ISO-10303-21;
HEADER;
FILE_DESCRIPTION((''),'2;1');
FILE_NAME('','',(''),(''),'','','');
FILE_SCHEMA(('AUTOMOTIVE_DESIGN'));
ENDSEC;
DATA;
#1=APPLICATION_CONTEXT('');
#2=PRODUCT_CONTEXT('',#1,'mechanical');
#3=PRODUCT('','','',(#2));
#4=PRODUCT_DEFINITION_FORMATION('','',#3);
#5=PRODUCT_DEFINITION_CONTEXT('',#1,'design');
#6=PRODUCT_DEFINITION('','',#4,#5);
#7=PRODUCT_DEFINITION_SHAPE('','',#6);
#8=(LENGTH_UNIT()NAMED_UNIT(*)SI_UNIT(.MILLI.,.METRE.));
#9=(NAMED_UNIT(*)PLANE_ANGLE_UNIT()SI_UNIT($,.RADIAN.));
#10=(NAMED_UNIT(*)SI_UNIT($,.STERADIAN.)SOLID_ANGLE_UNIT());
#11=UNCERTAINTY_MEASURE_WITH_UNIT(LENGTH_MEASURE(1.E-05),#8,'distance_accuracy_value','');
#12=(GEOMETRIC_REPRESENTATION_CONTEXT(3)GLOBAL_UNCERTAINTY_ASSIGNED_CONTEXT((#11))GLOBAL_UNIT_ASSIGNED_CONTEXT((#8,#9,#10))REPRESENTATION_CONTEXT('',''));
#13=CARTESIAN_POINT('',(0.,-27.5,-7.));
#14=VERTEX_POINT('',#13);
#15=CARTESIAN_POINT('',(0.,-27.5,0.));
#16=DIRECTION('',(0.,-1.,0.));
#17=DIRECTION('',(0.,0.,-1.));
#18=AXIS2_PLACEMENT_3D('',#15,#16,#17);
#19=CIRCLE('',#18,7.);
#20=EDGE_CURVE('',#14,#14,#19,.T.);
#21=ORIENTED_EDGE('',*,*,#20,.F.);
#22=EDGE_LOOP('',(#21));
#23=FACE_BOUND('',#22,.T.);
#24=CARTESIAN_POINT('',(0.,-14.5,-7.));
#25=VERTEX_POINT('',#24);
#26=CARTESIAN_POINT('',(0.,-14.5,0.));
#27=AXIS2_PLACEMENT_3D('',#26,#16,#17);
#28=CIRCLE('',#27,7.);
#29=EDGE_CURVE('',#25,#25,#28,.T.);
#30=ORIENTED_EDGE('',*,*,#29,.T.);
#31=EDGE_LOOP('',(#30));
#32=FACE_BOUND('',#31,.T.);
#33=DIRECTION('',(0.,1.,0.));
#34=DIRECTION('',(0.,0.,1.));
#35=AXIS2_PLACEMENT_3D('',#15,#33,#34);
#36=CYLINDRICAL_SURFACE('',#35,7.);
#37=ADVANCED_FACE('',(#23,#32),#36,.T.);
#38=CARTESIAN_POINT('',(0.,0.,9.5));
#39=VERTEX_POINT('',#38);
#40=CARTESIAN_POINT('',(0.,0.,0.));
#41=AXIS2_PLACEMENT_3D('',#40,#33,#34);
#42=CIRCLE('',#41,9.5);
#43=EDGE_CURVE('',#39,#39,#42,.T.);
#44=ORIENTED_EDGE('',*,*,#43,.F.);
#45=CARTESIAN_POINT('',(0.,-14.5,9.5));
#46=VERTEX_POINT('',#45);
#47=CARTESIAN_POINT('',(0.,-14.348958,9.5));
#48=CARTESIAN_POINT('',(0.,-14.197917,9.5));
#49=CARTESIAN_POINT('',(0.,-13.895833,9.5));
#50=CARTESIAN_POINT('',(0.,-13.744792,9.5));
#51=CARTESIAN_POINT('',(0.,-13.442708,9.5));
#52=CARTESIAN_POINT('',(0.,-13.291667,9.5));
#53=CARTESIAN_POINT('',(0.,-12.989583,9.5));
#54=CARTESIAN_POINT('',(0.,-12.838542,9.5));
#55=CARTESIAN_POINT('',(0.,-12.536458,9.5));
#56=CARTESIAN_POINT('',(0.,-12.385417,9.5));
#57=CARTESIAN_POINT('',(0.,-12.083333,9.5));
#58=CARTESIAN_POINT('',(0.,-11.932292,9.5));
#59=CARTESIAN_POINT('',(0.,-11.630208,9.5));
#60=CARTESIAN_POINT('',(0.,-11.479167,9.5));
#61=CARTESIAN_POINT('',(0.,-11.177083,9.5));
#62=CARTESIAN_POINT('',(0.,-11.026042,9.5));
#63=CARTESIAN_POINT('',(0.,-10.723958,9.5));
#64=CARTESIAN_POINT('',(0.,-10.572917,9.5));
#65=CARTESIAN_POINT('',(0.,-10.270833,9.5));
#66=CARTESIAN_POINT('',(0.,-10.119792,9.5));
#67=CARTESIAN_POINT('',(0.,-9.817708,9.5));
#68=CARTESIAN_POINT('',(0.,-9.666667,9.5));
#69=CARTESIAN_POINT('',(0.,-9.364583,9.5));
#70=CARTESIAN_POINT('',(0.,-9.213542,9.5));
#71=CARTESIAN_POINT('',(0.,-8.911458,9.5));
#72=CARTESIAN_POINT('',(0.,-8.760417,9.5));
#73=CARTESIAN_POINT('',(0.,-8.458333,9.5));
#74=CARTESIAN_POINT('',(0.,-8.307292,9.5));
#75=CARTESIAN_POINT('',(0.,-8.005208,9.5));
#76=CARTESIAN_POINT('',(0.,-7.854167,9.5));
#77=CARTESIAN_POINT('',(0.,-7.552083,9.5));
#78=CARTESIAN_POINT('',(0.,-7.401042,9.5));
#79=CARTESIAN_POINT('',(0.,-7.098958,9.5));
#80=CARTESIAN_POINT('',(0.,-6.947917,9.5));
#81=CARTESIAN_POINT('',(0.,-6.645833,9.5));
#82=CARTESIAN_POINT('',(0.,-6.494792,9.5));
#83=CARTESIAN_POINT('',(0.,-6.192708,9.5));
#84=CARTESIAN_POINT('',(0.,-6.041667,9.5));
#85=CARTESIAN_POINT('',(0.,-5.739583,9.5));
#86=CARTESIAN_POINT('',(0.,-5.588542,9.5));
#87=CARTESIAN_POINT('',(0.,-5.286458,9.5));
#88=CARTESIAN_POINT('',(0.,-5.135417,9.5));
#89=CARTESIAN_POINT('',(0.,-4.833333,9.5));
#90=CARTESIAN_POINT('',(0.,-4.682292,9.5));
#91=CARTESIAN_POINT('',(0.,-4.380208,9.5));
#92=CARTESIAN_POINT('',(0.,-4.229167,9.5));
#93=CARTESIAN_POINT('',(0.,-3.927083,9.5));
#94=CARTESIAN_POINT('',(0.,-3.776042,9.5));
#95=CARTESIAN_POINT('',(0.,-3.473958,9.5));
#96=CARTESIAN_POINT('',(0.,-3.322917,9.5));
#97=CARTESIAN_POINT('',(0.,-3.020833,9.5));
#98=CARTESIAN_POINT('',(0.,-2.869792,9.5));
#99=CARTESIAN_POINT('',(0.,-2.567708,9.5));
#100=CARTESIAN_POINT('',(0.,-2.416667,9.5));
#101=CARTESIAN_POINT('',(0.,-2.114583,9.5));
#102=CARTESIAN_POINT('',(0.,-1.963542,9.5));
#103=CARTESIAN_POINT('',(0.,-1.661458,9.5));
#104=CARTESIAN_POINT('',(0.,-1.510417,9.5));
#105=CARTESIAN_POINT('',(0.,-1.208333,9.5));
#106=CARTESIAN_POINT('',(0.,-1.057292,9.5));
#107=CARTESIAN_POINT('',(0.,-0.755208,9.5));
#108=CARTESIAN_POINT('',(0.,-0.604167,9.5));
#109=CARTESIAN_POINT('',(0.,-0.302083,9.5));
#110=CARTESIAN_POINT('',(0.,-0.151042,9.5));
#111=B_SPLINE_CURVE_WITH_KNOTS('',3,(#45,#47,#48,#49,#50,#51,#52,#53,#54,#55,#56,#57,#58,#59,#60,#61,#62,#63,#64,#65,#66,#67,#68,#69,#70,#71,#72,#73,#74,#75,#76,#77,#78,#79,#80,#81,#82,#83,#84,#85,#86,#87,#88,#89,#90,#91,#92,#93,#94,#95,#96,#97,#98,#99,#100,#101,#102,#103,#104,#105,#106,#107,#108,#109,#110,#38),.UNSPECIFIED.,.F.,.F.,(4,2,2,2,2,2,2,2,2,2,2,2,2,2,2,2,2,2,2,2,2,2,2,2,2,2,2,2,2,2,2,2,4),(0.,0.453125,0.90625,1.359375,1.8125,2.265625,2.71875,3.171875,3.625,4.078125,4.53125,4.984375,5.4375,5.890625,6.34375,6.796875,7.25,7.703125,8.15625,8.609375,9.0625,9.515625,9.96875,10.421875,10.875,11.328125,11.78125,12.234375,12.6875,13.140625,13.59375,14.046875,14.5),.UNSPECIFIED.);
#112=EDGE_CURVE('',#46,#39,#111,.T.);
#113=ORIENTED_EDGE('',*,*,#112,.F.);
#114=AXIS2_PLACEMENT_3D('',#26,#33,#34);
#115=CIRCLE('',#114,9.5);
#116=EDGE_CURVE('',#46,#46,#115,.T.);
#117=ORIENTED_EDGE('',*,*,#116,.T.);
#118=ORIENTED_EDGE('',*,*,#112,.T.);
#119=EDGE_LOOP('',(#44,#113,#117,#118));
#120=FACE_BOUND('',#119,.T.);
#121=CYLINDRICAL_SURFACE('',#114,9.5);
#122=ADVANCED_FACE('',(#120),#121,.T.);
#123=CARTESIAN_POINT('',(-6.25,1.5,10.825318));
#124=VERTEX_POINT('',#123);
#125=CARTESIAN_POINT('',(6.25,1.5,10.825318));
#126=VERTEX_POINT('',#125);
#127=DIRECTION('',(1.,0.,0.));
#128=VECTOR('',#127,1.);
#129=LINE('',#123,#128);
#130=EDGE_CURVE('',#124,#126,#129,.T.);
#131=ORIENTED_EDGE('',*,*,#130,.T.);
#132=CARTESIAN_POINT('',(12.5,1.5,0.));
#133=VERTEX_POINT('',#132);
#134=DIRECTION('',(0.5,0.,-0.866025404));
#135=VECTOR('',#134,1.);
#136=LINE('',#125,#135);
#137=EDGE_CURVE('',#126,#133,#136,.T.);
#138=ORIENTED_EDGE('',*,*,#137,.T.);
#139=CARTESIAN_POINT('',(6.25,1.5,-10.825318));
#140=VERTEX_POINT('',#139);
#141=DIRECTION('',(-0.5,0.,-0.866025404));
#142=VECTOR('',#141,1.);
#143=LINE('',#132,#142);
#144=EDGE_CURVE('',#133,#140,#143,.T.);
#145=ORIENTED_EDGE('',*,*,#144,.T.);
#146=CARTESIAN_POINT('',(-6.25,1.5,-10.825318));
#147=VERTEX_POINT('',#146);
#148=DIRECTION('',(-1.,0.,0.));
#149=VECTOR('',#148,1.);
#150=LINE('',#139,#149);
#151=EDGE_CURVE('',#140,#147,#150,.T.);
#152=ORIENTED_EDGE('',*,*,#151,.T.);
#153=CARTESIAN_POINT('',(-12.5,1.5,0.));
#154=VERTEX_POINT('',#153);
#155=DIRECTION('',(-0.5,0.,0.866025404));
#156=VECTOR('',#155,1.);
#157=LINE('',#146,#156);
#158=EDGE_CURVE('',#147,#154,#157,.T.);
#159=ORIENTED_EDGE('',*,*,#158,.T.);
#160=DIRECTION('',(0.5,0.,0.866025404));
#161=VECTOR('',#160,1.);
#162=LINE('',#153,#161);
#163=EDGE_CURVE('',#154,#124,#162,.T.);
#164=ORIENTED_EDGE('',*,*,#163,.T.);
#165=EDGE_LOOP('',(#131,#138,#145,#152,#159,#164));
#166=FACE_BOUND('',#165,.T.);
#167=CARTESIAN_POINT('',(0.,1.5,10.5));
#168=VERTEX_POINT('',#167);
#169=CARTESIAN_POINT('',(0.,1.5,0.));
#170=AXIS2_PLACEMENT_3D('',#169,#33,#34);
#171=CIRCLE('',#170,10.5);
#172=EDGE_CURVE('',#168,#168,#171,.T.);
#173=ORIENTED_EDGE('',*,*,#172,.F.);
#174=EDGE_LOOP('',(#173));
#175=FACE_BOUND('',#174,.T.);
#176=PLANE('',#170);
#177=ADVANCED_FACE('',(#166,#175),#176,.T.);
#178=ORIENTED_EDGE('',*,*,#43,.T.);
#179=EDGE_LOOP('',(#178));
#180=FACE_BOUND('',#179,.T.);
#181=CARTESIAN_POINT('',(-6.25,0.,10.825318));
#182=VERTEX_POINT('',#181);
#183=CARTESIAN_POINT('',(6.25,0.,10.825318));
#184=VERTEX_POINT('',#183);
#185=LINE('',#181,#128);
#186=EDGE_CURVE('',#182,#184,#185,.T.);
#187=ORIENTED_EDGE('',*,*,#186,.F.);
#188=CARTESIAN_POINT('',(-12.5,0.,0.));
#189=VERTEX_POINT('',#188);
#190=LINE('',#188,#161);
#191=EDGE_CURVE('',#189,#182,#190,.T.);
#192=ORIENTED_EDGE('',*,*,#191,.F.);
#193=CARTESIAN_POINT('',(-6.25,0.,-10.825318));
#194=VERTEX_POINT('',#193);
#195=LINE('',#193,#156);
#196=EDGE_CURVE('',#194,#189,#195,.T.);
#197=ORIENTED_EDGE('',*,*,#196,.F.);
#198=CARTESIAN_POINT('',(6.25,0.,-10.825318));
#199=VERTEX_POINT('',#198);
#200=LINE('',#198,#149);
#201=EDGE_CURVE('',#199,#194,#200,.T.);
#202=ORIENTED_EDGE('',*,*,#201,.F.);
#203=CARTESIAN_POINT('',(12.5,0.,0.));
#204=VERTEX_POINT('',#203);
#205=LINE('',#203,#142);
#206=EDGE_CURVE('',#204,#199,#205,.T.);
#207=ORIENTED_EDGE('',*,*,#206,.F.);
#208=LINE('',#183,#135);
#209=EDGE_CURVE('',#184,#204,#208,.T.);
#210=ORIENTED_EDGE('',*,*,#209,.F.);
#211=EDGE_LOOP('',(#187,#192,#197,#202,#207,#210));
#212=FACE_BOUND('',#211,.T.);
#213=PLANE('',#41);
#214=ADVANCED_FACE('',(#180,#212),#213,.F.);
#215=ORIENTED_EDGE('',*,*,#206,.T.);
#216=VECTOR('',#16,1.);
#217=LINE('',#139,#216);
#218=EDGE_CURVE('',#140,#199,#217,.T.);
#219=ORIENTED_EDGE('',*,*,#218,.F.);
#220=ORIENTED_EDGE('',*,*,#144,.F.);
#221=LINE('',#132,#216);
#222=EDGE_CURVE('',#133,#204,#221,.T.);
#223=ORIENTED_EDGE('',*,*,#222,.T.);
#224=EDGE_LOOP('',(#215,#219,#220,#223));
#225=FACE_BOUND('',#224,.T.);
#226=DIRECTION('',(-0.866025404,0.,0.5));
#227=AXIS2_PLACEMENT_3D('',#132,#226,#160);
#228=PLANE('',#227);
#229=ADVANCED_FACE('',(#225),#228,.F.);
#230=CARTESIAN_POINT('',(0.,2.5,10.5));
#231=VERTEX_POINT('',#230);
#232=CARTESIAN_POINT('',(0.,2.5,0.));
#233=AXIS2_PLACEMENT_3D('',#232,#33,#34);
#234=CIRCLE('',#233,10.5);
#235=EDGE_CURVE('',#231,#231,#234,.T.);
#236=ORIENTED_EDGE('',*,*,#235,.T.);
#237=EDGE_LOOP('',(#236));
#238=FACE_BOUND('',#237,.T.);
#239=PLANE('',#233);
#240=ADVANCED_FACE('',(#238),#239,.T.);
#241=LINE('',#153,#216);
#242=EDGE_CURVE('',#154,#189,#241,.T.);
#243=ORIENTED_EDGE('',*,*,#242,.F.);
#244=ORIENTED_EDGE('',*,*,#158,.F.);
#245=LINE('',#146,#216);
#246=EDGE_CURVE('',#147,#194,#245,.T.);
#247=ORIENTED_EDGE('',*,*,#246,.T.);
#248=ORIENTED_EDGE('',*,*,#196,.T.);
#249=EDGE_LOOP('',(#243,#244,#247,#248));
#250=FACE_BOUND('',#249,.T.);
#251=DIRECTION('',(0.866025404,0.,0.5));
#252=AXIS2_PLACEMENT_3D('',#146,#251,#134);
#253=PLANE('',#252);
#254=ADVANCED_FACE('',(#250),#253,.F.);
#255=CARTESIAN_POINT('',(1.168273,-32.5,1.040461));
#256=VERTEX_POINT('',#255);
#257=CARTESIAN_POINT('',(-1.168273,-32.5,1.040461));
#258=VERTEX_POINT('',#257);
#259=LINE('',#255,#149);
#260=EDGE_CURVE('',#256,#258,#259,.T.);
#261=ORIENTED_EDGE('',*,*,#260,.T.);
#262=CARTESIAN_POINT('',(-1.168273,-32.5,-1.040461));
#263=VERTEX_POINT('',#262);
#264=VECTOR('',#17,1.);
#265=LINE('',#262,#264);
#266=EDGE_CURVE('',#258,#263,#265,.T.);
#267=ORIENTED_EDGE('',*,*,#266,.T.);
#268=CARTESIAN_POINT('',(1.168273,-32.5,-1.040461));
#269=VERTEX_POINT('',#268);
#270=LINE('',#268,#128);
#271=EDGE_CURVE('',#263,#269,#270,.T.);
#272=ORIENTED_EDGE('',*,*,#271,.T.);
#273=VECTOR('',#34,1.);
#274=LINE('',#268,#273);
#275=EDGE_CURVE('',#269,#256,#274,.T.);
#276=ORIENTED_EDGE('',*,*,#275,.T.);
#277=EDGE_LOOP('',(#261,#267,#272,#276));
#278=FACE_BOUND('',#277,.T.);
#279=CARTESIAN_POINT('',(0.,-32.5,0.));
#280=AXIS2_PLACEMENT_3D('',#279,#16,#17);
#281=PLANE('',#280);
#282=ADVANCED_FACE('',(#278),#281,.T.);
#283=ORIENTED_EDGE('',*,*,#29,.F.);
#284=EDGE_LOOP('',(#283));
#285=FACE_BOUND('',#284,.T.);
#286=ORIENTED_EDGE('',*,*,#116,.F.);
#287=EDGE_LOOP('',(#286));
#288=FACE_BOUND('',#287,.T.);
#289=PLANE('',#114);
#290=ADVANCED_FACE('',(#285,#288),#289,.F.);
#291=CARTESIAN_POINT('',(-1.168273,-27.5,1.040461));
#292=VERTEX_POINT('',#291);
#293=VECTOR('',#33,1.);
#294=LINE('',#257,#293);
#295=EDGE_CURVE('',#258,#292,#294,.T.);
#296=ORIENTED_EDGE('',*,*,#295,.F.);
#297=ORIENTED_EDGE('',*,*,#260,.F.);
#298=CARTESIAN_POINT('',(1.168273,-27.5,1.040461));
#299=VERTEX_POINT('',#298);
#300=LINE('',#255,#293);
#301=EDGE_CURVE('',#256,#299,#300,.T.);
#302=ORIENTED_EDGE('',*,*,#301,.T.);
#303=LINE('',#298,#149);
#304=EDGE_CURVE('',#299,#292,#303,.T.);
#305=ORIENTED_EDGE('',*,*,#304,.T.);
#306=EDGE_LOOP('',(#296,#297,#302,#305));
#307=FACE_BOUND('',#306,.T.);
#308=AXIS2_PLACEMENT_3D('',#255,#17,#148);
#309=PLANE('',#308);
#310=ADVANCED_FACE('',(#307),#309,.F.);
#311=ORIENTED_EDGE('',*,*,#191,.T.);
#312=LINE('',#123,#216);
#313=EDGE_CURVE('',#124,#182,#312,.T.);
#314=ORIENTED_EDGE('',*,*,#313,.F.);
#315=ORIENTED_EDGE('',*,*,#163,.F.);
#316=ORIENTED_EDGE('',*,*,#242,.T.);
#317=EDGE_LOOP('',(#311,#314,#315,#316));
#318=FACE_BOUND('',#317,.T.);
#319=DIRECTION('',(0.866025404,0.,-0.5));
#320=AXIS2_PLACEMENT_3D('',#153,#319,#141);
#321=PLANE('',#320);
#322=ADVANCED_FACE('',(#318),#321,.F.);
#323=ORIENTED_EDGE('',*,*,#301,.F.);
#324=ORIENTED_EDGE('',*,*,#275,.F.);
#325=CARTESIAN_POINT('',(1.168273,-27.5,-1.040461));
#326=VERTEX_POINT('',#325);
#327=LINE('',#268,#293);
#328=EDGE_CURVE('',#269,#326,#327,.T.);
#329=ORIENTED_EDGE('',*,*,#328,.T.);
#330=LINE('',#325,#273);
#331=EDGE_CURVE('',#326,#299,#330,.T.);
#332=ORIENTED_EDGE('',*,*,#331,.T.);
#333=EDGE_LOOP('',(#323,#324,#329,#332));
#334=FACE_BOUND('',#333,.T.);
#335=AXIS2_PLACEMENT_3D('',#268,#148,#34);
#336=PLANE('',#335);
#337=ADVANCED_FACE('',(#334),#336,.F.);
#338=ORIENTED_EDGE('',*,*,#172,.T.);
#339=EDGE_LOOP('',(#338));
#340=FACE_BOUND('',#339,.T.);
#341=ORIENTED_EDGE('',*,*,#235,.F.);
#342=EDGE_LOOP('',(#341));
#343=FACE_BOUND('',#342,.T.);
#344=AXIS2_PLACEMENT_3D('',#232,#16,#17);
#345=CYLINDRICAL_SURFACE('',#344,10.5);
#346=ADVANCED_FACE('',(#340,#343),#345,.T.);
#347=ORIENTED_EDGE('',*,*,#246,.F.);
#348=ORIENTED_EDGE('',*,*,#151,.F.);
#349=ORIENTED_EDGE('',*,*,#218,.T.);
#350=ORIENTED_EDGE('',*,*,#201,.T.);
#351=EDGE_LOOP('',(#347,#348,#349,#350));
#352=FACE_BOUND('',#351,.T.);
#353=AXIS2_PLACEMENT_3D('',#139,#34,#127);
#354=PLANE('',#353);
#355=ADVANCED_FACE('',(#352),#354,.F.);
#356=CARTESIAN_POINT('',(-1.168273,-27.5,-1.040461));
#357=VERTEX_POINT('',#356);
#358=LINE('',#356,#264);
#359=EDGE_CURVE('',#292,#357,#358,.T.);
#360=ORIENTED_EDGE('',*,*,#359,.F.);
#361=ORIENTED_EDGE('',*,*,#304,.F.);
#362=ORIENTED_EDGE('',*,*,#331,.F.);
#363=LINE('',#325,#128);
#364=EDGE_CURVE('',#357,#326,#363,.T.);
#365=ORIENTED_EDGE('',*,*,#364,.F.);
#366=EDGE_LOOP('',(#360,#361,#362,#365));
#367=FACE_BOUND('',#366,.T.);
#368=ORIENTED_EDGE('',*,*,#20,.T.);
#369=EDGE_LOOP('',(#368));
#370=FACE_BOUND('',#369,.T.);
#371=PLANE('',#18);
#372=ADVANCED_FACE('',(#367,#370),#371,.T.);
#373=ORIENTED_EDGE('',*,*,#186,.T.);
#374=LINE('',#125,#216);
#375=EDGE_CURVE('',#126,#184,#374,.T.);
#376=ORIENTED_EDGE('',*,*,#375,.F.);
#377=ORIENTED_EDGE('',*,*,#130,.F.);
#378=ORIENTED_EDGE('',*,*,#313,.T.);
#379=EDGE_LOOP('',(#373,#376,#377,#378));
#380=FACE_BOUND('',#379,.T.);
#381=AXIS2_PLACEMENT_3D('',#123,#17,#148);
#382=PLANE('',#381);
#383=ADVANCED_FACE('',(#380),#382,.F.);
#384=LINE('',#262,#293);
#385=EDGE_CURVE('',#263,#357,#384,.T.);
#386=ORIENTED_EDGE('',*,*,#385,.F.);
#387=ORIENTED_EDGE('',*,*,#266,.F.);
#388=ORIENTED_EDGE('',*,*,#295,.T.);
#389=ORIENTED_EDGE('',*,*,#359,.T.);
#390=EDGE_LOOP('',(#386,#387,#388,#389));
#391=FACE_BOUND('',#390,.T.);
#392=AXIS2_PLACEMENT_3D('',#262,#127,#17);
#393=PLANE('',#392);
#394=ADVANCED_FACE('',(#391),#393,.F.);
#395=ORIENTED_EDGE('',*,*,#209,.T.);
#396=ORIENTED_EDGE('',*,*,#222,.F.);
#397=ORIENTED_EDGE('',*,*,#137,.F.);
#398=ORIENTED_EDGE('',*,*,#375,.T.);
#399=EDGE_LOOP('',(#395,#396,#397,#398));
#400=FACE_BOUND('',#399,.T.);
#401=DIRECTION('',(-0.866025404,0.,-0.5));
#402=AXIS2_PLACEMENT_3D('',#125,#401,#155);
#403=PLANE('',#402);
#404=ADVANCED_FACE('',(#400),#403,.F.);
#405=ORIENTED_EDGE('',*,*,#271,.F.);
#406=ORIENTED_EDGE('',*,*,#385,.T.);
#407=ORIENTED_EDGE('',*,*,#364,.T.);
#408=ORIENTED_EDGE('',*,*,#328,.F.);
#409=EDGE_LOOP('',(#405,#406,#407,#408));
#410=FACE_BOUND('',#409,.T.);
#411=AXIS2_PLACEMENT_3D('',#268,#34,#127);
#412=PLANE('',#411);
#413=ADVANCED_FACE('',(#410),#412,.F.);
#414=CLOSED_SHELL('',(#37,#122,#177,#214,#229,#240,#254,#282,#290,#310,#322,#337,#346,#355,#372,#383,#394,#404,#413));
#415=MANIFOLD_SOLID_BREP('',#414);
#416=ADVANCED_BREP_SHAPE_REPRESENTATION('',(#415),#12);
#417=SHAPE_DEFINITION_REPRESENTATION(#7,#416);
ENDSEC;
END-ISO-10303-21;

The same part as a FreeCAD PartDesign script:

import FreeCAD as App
import Part
import Sketcher
Q = App.Units.Quantity


def add_polygon(sketch, points):
    """Adds a closed chain of lines whose ends are joined by coincident constraints."""
    first, n = sketch.GeometryCount, len(points)
    for a, b in zip(points, points[1:] + points[:1]):
        sketch.addGeometry(Part.LineSegment(App.Vector(*a, 0), App.Vector(*b, 0)), False)
    for i in range(n):
        sketch.addConstraint(Sketcher.Constraint("Coincident", first + i, 2, first + (i + 1) % n, 1))

doc = App.newDocument("Part")
params = doc.addObject("Spreadsheet::Sheet", "Params")
for row, (alias, value) in enumerate([
    ("sketch1_diameter", "19 mm"),
    ("pad1_length", "14.5 mm"),
    ("sketch2_diameter", "14 mm"),
    ("pad2_length", "13 mm"),
    ("sketch3_width", "12.5 mm"),
    ("pad3_length", "1.5 mm"),
    ("sketch4_diameter", "21 mm"),
    ("pad4_length", "1 mm"),
    ("pad5_length", "5 mm"),
], start=1):
    params.set(f"A{row}", alias)
    params.set(f"B{row}", "=" + value)
    params.setAlias(f"B{row}", alias)

body = doc.addObject("PartDesign::Body", "Body")

# Sketch on XZ plane
sketch1 = body.newObject("Sketcher::SketchObject", "Sketch")
sketch1.AttachmentSupport = (doc.getObject("XZ_Plane"), [""])
sketch1.MapMode = "FlatFace"
sketch1.addGeometry(Part.Circle(App.Vector(0, 0, 0), App.Vector(0, 0, 1), 9.5), False)
sketch1.addConstraint(Sketcher.Constraint("Coincident", 0, 3, -1, 1))
sketch1.addConstraint(Sketcher.Constraint("Diameter", 0, Q("19 mm")))
sketch1.setExpression("Constraints[1]", "Params.sketch1_diameter")
pad1 = body.newObject("PartDesign::Pad", "Pad")
pad1.Profile = sketch1
pad1.setExpression("Length", "Params.pad1_length")

# Sketch on XZ plane
sketch2 = body.newObject("Sketcher::SketchObject", "Sketch001")
sketch2.AttachmentSupport = (doc.getObject("XZ_Plane"), [""])
sketch2.MapMode = "FlatFace"
sketch2.AttachmentOffset = App.Placement(App.Vector(0, 0, 14.5), App.Rotation())
sketch2.addGeometry(Part.Circle(App.Vector(0, 0, 0), App.Vector(0, 0, 1), 7), False)
sketch2.addConstraint(Sketcher.Constraint("Coincident", 0, 3, -1, 1))
sketch2.addConstraint(Sketcher.Constraint("Diameter", 0, Q("14 mm")))
sketch2.setExpression("Constraints[1]", "Params.sketch2_diameter")
pad2 = body.newObject("PartDesign::Pad", "Pad001")
pad2.Profile = sketch2
pad2.setExpression("Length", "Params.pad2_length")

# Sketch on XZ plane
sketch3 = body.newObject("Sketcher::SketchObject", "Sketch002")
sketch3.AttachmentSupport = (doc.getObject("XZ_Plane"), [""])
sketch3.MapMode = "FlatFace"
add_polygon(sketch3, [(12.5, 0), (6.25, -10.825318), (-6.25, -10.825318), (-12.5, 0), (-6.25, 10.825318), (6.25, 10.825318)])  # lines 0-5
sketch3.addConstraint(Sketcher.Constraint("Horizontal", 1))
sketch3.addConstraint(Sketcher.Constraint("Horizontal", 4))
sketch3.addConstraint(Sketcher.Constraint("Symmetric", 0, 2, 3, 2, -1, 1))
sketch3.addConstraint(Sketcher.Constraint("Symmetric", 2, 2, 5, 2, -1, 1))
sketch3.addConstraint(Sketcher.Constraint("PointOnObject", 2, 2, -1))
sketch3.addConstraint(Sketcher.Constraint("Parallel", 2, 5))
sketch3.addConstraint(Sketcher.Constraint("Vertical", 1, 2, 3, 2))
sketch3.addConstraint(Sketcher.Constraint("Angle", 0, Q("-120 deg")))
sketch3.addConstraint(Sketcher.Constraint("DistanceX", 1, 2, 1, 1, Q("12.5 mm")))
sketch3.addConstraint(Sketcher.Constraint("DistanceX", 2, 2, 5, 2, Q("25 mm")))
sketch3.setExpression("Constraints[14]", "Params.sketch3_width")
pad3 = body.newObject("PartDesign::Pad", "Pad002")
pad3.Profile = sketch3
pad3.setExpression("Length", "Params.pad3_length")
pad3.Reversed = True

# Sketch on XZ plane
sketch4 = body.newObject("Sketcher::SketchObject", "Sketch003")
sketch4.AttachmentSupport = (doc.getObject("XZ_Plane"), [""])
sketch4.MapMode = "FlatFace"
sketch4.AttachmentOffset = App.Placement(App.Vector(0, 0, -1.5), App.Rotation())
sketch4.addGeometry(Part.Circle(App.Vector(0, 0, 0), App.Vector(0, 0, 1), 10.5), False)
sketch4.addConstraint(Sketcher.Constraint("Coincident", 0, 3, -1, 1))
sketch4.addConstraint(Sketcher.Constraint("Diameter", 0, Q("21 mm")))
sketch4.setExpression("Constraints[1]", "Params.sketch4_diameter")
pad4 = body.newObject("PartDesign::Pad", "Pad003")
pad4.Profile = sketch4
pad4.setExpression("Length", "Params.pad4_length")
pad4.Reversed = True

# Sketch on XZ plane
sketch5 = body.newObject("Sketcher::SketchObject", "Sketch004")
sketch5.AttachmentSupport = (doc.getObject("XZ_Plane"), [""])
sketch5.MapMode = "FlatFace"
sketch5.AttachmentOffset = App.Placement(App.Vector(0, 0, 27.5), App.Rotation())
add_polygon(sketch5, [(-1.168273, 1.040461), (-1.168273, -1.040461), (1.168273, -1.040461), (1.168273, 1.040461)])  # lines 0-3
sketch5.addConstraint(Sketcher.Constraint("Vertical", 0))
sketch5.addConstraint(Sketcher.Constraint("Horizontal", 1))
sketch5.addConstraint(Sketcher.Constraint("Vertical", 2))
sketch5.addConstraint(Sketcher.Constraint("Horizontal", 3))
sketch5.addConstraint(Sketcher.Constraint("Symmetric", 0, 2, 2, 2, -1, 1))
sketch5.addConstraint(Sketcher.Constraint("DistanceX", 1, 1, 1, 2, Q("2.336545 mm")))
sketch5.addConstraint(Sketcher.Constraint("DistanceY", 0, 2, 0, 1, Q("2.080922 mm")))
pad5 = body.newObject("PartDesign::Pad", "Pad004")
pad5.Profile = sketch5
pad5.setExpression("Length", "Params.pad5_length")

doc.recompute()
